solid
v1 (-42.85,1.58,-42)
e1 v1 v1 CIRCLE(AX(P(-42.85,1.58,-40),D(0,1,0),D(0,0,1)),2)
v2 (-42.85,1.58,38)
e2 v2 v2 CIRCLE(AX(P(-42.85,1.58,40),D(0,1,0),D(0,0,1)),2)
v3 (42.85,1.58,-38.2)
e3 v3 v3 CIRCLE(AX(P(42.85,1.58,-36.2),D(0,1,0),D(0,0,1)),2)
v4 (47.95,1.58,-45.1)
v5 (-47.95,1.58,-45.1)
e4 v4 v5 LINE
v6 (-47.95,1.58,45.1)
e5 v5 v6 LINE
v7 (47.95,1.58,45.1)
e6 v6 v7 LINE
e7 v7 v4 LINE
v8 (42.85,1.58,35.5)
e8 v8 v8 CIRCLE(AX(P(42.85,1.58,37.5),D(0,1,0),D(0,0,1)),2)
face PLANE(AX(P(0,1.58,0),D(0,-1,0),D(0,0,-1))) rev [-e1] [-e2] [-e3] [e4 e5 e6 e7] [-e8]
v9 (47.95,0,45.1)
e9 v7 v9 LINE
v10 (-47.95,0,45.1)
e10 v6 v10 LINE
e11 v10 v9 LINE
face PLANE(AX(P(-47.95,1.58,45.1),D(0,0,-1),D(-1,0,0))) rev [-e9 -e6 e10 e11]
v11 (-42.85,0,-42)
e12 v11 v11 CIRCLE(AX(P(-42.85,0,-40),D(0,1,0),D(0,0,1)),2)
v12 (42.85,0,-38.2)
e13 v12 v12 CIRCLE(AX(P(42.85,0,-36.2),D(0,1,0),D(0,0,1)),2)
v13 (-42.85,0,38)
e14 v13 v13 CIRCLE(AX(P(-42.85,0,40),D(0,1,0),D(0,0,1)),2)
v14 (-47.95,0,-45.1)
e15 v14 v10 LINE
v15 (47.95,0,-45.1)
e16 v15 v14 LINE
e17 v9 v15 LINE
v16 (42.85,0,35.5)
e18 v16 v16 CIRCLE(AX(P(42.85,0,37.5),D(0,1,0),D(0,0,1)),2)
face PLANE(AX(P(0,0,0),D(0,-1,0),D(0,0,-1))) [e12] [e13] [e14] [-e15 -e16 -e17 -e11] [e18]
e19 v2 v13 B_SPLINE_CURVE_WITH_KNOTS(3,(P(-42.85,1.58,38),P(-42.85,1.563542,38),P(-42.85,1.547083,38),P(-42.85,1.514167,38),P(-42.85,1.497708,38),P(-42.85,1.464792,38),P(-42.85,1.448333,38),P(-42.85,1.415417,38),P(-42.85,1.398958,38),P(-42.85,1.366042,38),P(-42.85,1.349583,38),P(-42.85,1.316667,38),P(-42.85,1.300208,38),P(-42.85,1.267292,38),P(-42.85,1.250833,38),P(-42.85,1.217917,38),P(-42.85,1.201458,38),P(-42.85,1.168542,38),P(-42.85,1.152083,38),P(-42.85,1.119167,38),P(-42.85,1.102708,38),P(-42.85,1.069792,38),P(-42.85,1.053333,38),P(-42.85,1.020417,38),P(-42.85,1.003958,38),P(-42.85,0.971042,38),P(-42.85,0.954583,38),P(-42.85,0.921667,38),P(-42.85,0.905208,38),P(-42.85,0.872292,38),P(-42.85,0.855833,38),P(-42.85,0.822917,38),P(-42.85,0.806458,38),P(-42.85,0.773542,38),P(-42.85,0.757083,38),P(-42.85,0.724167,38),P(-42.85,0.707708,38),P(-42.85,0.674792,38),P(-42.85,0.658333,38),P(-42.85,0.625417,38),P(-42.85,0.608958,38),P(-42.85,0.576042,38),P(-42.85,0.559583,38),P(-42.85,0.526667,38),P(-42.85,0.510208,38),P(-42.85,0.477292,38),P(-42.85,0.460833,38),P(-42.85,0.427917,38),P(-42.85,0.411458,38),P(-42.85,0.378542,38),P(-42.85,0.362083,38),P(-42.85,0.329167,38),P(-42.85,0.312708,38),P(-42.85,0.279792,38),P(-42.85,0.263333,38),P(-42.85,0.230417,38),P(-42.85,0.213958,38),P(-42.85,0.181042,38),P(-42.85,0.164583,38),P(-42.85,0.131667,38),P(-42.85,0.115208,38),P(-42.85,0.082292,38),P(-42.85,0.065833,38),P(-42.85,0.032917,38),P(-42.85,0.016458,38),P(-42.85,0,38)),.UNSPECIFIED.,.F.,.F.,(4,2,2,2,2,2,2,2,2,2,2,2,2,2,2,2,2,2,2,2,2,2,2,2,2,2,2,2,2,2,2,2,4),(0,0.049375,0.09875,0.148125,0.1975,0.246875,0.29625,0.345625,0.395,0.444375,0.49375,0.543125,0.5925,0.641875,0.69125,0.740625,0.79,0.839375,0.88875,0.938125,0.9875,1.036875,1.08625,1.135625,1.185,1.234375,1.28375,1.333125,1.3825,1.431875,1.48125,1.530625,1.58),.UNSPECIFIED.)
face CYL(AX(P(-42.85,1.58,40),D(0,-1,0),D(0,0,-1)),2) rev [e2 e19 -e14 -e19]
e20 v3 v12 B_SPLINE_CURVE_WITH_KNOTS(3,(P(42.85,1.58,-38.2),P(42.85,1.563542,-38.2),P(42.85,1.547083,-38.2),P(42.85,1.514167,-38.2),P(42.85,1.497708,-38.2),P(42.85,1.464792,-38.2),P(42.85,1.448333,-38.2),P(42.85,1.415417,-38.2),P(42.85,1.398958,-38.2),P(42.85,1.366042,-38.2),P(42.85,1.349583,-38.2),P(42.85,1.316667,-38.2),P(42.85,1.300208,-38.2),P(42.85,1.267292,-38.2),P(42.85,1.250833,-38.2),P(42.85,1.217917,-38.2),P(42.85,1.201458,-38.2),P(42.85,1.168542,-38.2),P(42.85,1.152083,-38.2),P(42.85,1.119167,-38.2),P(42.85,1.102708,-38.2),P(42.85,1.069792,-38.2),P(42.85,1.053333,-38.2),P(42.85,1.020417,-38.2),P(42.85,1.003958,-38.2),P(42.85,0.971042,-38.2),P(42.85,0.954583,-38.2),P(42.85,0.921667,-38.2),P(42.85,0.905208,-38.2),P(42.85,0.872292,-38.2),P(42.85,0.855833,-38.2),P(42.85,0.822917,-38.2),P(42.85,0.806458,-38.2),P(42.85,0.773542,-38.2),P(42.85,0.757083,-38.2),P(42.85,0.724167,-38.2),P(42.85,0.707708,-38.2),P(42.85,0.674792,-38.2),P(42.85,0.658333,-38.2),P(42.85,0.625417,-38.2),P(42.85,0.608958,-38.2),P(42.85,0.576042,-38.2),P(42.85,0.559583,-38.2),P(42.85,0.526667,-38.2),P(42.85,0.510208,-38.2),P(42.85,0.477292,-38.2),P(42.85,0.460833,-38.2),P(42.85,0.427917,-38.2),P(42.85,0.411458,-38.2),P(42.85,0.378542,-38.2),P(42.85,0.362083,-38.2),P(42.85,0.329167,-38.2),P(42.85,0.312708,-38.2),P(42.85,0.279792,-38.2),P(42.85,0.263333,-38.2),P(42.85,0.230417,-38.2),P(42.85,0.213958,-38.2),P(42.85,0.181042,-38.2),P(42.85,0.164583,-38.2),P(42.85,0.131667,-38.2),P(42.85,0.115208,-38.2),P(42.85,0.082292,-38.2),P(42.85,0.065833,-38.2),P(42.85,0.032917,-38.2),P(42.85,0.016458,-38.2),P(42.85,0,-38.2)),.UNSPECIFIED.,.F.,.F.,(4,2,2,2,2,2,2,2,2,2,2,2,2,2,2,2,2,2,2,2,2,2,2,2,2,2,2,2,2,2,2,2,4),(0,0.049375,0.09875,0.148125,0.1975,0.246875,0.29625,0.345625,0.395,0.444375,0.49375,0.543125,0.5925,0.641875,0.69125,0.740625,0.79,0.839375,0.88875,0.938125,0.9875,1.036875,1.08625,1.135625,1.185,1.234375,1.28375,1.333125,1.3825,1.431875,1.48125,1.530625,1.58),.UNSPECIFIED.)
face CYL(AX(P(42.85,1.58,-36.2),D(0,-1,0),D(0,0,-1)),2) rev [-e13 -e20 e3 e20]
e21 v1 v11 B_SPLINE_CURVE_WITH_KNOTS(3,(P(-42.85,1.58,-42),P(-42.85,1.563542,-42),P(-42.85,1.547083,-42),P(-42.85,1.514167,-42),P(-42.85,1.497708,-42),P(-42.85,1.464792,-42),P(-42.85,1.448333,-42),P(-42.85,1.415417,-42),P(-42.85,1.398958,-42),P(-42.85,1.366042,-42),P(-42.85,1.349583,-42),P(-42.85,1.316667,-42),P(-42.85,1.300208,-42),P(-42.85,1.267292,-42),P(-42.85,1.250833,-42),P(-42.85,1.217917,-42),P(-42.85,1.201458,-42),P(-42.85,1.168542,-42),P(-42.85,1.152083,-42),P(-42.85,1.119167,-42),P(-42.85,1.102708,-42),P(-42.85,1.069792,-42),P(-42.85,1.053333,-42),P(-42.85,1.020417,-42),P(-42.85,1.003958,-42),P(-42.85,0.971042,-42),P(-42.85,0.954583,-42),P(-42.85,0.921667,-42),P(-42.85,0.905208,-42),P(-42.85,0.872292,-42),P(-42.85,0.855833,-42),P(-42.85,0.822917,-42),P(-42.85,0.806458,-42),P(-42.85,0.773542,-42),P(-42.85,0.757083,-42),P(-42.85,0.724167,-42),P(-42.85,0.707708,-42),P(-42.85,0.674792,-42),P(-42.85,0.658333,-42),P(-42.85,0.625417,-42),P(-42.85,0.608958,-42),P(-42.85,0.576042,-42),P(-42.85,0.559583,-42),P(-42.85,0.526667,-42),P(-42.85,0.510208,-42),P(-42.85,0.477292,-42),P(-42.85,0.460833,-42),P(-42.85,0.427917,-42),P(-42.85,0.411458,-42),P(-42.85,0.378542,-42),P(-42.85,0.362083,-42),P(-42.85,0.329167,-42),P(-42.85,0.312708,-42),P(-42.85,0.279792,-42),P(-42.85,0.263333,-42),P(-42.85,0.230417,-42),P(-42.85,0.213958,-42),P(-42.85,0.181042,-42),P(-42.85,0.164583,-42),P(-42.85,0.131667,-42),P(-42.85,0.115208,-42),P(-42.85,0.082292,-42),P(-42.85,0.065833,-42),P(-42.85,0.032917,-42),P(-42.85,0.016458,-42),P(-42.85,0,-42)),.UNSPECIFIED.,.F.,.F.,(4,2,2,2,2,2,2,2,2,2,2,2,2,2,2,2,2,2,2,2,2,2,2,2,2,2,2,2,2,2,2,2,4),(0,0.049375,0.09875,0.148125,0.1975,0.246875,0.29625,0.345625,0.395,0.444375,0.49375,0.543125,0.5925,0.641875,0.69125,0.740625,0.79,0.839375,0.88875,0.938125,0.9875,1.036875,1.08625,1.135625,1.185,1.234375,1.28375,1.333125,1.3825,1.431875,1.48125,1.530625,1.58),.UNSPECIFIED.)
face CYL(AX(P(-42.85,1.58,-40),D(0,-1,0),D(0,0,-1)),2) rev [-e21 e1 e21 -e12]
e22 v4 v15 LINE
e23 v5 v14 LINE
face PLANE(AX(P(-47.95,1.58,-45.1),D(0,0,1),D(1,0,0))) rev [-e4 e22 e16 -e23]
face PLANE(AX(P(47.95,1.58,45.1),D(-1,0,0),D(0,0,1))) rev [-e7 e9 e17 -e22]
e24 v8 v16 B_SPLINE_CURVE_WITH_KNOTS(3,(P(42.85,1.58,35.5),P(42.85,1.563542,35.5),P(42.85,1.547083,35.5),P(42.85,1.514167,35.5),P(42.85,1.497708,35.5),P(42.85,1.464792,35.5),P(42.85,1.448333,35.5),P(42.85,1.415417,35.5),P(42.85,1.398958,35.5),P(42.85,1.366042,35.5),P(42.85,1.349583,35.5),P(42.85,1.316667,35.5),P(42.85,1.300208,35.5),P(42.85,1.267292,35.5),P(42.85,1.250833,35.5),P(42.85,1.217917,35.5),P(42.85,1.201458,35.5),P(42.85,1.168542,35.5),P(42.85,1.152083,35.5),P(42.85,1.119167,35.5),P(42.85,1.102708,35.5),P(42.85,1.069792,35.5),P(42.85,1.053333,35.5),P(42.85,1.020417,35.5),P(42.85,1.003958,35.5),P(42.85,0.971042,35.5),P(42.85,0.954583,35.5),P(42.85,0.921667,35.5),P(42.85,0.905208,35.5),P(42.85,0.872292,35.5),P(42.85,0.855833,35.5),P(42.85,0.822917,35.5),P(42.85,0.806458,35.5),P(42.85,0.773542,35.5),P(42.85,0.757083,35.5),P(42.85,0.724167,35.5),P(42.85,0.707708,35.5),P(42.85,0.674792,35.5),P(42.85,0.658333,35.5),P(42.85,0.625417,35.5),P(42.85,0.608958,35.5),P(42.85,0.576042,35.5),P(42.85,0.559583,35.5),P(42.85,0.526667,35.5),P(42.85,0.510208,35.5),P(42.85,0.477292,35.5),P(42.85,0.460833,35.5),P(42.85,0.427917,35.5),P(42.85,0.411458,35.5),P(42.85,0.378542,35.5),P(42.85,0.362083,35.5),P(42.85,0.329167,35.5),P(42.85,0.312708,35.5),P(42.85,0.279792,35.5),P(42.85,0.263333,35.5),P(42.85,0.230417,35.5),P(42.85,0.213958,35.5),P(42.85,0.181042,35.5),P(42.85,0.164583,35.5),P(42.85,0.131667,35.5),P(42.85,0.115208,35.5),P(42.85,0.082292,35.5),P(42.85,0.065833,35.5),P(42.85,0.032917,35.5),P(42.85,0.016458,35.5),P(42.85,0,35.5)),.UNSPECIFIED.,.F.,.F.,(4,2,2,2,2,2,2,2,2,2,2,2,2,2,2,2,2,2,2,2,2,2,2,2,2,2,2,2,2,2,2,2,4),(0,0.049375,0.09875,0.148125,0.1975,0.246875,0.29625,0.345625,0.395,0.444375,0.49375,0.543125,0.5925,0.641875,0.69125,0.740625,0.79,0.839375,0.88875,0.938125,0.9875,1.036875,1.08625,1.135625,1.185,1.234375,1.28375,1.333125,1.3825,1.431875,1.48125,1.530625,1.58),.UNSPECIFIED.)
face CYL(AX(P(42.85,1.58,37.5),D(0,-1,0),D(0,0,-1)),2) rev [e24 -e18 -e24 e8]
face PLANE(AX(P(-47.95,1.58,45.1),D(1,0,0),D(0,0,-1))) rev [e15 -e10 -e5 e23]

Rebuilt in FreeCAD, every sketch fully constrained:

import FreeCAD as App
import Part
import Sketcher

V = App.Vector

doc = App.newDocument("Part")
body = doc.addObject("PartDesign::Body", "Body")

# Sketch on XZ plane
sketch1 = doc.addObject("Sketcher::SketchObject", "Sketch")
body.addObject(sketch1)
sketch1.AttachmentSupport = (doc.XZ_Plane, [""])
sketch1.MapMode = "FlatFace"
sketch1.addGeometry([
    Part.LineSegment(V(-48, -45.1, 0), V(-48, 45.1, 0)),  # 0
    Part.LineSegment(V(-48, 45.1, 0), V(48, 45.1, 0)),  # 1
    Part.LineSegment(V(48, 45.1, 0), V(48, -45.1, 0)),  # 2
    Part.LineSegment(V(48, -45.1, 0), V(-48, -45.1, 0)),  # 3
    Part.Circle(V(-42.9, 40, 0), V(0, 0, 1), 2),  # 4
    Part.Circle(V(42.9, 37.5, 0), V(0, 0, 1), 2),  # 5
    Part.Circle(V(-42.9, -40, 0), V(0, 0, 1), 2),  # 6
    Part.Circle(V(42.9, -36.2, 0), V(0, 0, 1), 2),  # 7
], False)
sketch1.addConstraint([
    Sketcher.Constraint("Coincident", 0, 2, 1, 1),
    Sketcher.Constraint("Coincident", 1, 2, 2, 1),
    Sketcher.Constraint("Coincident", 2, 2, 3, 1),
    Sketcher.Constraint("Coincident", 3, 2, 0, 1),
    Sketcher.Constraint("Vertical", 0),
    Sketcher.Constraint("Horizontal", 1),
    Sketcher.Constraint("Vertical", 2),
    Sketcher.Constraint("Horizontal", 3),
    Sketcher.Constraint("Equal", 4, 5),
    Sketcher.Constraint("Equal", 5, 6),
    Sketcher.Constraint("Equal", 6, 7),
    Sketcher.Constraint("Symmetric", 0, 2, 2, 2, -1, 1),
    Sketcher.Constraint("Symmetric", 4, 3, 6, 3, -1),
    Sketcher.Constraint("Vertical", 5, 3, 7, 3),
    Sketcher.Constraint("Diameter", 4, 4.0),
    Sketcher.Constraint("DistanceX", 1, 1, 1, 2, 95.9),
    Sketcher.Constraint("DistanceY", 0, 1, 0, 2, 90.2),
    Sketcher.Constraint("DistanceY", -1, 1, 4, 3, 40.0),
    Sketcher.Constraint("DistanceY", -1, 1, 5, 3, 37.5),
    Sketcher.Constraint("DistanceY", 7, 3, -1, 1, 36.2),
    Sketcher.Constraint("DistanceX", 4, 3, 5, 3, 85.7),
    Sketcher.Constraint("DistanceX", 0, 2, 4, 3, 5.1),
])
pad1 = doc.addObject("PartDesign::Pad", "Pad")
body.addObject(pad1)
pad1.Profile = sketch1
pad1.Length = 1.58
pad1.Reversed = True

doc.recompute()
